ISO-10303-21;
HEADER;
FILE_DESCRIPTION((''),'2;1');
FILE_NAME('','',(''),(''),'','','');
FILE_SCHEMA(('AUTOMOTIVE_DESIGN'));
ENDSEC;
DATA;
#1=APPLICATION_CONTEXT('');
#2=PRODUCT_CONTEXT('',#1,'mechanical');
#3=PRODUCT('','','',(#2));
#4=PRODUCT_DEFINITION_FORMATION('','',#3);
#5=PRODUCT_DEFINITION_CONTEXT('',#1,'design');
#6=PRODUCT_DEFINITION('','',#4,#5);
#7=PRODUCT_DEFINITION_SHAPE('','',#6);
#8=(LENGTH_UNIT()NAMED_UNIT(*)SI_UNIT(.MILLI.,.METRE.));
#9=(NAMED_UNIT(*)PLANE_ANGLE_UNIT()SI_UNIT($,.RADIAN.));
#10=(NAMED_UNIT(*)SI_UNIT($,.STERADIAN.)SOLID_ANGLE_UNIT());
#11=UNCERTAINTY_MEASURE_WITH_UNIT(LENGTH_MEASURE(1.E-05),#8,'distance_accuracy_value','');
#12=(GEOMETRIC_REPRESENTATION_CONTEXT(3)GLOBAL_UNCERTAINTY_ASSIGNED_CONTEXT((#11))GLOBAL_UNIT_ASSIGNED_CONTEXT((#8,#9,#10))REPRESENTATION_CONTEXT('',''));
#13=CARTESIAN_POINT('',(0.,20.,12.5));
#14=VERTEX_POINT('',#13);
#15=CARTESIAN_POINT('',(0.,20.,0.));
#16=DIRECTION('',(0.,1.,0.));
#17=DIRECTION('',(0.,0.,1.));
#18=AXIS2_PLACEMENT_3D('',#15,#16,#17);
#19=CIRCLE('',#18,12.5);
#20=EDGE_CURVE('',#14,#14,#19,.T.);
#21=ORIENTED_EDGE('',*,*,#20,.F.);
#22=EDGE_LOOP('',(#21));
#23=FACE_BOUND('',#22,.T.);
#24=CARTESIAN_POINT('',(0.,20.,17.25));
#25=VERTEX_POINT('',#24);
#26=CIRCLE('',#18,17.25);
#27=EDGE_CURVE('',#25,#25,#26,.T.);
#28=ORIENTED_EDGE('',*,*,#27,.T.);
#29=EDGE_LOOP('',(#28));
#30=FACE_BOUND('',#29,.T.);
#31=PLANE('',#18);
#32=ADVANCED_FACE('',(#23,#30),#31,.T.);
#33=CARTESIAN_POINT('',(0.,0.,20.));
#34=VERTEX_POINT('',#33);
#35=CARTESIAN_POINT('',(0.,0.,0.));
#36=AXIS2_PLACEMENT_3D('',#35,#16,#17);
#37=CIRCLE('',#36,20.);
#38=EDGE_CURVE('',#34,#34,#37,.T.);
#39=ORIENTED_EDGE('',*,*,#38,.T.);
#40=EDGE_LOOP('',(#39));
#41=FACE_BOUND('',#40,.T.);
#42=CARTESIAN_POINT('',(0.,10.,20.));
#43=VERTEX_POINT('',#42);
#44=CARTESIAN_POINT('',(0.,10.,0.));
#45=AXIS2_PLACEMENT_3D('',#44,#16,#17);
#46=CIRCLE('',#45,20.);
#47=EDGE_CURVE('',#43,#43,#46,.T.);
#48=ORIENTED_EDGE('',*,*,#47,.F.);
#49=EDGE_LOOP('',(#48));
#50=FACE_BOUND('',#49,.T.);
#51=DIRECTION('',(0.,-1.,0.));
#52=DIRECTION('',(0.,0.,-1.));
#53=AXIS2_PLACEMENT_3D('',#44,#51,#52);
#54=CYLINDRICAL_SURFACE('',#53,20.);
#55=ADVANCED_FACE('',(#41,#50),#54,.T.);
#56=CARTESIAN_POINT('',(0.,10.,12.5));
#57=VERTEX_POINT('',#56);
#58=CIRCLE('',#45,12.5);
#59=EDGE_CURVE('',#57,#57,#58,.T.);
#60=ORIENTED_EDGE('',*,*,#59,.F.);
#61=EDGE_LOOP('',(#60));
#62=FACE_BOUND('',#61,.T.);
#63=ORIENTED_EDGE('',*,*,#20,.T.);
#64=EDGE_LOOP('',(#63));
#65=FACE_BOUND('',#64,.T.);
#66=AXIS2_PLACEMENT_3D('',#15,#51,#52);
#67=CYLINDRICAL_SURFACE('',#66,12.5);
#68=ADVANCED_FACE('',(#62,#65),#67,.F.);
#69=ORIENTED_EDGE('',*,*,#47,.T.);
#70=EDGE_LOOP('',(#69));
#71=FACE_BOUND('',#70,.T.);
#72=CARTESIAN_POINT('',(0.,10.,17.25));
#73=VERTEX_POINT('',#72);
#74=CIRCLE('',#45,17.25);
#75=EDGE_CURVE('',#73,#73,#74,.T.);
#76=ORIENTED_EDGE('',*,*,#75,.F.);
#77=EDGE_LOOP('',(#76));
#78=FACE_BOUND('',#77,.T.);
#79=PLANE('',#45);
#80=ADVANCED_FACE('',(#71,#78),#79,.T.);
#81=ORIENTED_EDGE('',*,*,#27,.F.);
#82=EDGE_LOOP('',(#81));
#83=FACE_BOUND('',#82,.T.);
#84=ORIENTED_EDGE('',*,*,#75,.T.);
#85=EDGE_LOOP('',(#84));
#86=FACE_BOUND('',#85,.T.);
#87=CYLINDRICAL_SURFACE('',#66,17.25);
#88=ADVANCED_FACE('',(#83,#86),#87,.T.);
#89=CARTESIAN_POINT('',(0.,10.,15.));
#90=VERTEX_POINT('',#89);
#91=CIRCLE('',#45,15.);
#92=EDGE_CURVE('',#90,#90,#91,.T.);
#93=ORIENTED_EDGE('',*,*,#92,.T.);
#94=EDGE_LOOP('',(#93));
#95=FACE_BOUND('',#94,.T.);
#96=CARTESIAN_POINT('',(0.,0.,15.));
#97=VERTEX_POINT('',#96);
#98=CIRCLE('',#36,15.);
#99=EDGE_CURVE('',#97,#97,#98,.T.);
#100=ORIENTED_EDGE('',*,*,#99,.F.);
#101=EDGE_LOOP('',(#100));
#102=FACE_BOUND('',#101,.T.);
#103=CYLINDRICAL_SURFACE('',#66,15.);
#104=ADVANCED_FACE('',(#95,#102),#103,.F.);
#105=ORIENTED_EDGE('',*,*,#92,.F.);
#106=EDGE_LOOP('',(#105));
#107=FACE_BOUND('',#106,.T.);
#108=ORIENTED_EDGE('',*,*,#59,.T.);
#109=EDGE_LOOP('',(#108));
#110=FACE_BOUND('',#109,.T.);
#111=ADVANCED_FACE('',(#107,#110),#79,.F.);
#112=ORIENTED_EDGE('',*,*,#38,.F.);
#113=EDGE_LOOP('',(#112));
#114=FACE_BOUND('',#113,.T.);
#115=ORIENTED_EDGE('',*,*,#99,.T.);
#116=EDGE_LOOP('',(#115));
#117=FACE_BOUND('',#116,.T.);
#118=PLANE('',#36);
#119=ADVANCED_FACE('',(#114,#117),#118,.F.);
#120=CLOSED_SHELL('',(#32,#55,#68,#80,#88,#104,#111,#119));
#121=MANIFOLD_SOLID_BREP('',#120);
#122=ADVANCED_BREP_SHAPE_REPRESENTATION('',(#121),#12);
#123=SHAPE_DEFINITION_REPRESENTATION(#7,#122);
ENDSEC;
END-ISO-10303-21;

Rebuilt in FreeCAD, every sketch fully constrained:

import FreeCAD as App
import Part
import Sketcher
from FreeCAD import Vector
Q = App.Units.Quantity

doc = App.newDocument("Part")
body = doc.addObject("PartDesign::Body", "Body")

sketch1 = body.newObject("Sketcher::SketchObject", "Sketch")
sketch1.AttachmentSupport = (doc.getObject("XZ_Plane"), [""])
sketch1.MapMode = "FlatFace"
sketch1.addGeometry([
    Part.Circle(Vector(0, 0, 0), Vector(0, 0, 1), 17.25),
    Part.Circle(Vector(0, 0, 0), Vector(0, 0, 1), 15),
], False)
sketch1.addConstraint([
    Sketcher.Constraint("Coincident", 0, 3, -1, 1),
    Sketcher.Constraint("Coincident", 1, 3, -1, 1),
    Sketcher.Constraint("Diameter", 1, Q("30 mm")),
    Sketcher.Constraint("Diameter", 0, Q("34.5 mm")),
])
pad1 = body.newObject("PartDesign::Pad", "Pad")
pad1.Profile = sketch1
pad1.Length = 20
pad1.Reversed = True

sketch2 = body.newObject("Sketcher::SketchObject", "Sketch001")
sketch2.AttachmentSupport = (doc.getObject("XZ_Plane"), [""])
sketch2.MapMode = "FlatFace"
sketch2.addGeometry([
    Part.Circle(Vector(0, 0, 0), Vector(0, 0, 1), 20),
    Part.Circle(Vector(0, 0, 0), Vector(0, 0, 1), 15),
], False)
sketch2.addConstraint([
    Sketcher.Constraint("Coincident", 0, 3, -1, 1),
    Sketcher.Constraint("Coincident", 1, 3, -1, 1),
    Sketcher.Constraint("Diameter", 0, Q("40 mm")),
    Sketcher.Constraint("Diameter", 1, Q("30 mm")),
])
pad2 = body.newObject("PartDesign::Pad", "Pad001")
pad2.Profile = sketch2
pad2.Length = 10
pad2.Reversed = True

sketch3 = body.newObject("Sketcher::SketchObject", "Sketch002")
sketch3.AttachmentSupport = (doc.getObject("XZ_Plane"), [""])
sketch3.MapMode = "FlatFace"
sketch3.AttachmentOffset = App.Placement(Vector(0, 0, -10), App.Rotation())
sketch3.addGeometry([
    Part.Circle(Vector(0, 0, 0), Vector(0, 0, 1), 15),
    Part.Circle(Vector(0, 0, 0), Vector(0, 0, 1), 12.5),
], False)
sketch3.addConstraint([
    Sketcher.Constraint("Coincident", 0, 3, -1, 1),
    Sketcher.Constraint("Coincident", 1, 3, -1, 1),
    Sketcher.Constraint("Diameter", 0, Q("30 mm")),
    Sketcher.Constraint("Diameter", 1, Q("25 mm")),
])
pad3 = body.newObject("PartDesign::Pad", "Pad002")
pad3.Profile = sketch3
pad3.Length = 10
pad3.Reversed = True

doc.recompute()
